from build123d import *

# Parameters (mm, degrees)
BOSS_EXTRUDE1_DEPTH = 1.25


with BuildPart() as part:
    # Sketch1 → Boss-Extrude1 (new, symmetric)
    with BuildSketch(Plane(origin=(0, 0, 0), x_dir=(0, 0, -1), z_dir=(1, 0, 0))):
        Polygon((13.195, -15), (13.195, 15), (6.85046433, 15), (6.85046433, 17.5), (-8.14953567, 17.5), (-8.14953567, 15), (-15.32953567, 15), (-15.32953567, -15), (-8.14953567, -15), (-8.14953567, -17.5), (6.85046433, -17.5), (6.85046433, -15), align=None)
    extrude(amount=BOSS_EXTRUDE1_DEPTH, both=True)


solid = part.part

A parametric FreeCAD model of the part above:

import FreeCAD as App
import Part
import Sketcher
from FreeCAD import Vector

doc = App.newDocument("Part")
params = doc.addObject("Spreadsheet::Sheet", "Params")
for row, (alias, value) in enumerate([
    ("sketch1_width", "30 mm"),
    ("sketch1_height", "15 mm"),
    ("sketch1_width2", "2.5 mm"),
    ("sketch1_height2", "7.18 mm"),
    ("pad1_length", "2.5 mm"),
], start=1):
    params.set(f"A{row}", alias)
    params.set(f"B{row}", "=" + value)
    params.setAlias(f"B{row}", alias)

body = doc.addObject("PartDesign::Body", "Body")

# Sketch on YZ plane
sketch1 = doc.addObject("Sketcher::SketchObject", "Sketch")
body.addObject(sketch1)
sketch1.AttachmentSupport = (doc.YZ_Plane, [""])
sketch1.MapMode = "FlatFace"
sketch1.addGeometry([
    Part.LineSegment(Vector(-15, -13.2, 0), Vector(15, -13.2, 0)),  # 0
    Part.LineSegment(Vector(15, -13.2, 0), Vector(15, -6.9, 0)),  # 1
    Part.LineSegment(Vector(15, -6.9, 0), Vector(17.5, -6.9, 0)),  # 2
    Part.LineSegment(Vector(17.5, -6.9, 0), Vector(17.5, 8.1, 0)),  # 3
    Part.LineSegment(Vector(17.5, 8.1, 0), Vector(15, 8.1, 0)),  # 4
    Part.LineSegment(Vector(15, 8.1, 0), Vector(15, 15.3, 0)),  # 5
    Part.LineSegment(Vector(15, 15.3, 0), Vector(-15, 15.3, 0)),  # 6
    Part.LineSegment(Vector(-15, 15.3, 0), Vector(-15, 8.1, 0)),  # 7
    Part.LineSegment(Vector(-15, 8.1, 0), Vector(-17.5, 8.1, 0)),  # 8
    Part.LineSegment(Vector(-17.5, 8.1, 0), Vector(-17.5, -6.9, 0)),  # 9
    Part.LineSegment(Vector(-17.5, -6.9, 0), Vector(-15, -6.9, 0)),  # 10
    Part.LineSegment(Vector(-15, -6.9, 0), Vector(-15, -13.2, 0)),  # 11
], False)
sketch1.addConstraint([
    Sketcher.Constraint("Coincident", 0, 2, 1, 1),
    Sketcher.Constraint("Coincident", 1, 2, 2, 1),
    Sketcher.Constraint("Coincident", 2, 2, 3, 1),
    Sketcher.Constraint("Coincident", 3, 2, 4, 1),
    Sketcher.Constraint("Coincident", 4, 2, 5, 1),
    Sketcher.Constraint("Coincident", 5, 2, 6, 1),
    Sketcher.Constraint("Coincident", 6, 2, 7, 1),
    Sketcher.Constraint("Coincident", 7, 2, 8, 1),
    Sketcher.Constraint("Coincident", 8, 2, 9, 1),
    Sketcher.Constraint("Coincident", 9, 2, 10, 1),
    Sketcher.Constraint("Coincident", 10, 2, 11, 1),
    Sketcher.Constraint("Coincident", 11, 2, 0, 1),
    Sketcher.Constraint("Horizontal", 0),
    Sketcher.Constraint("Vertical", 1),
    Sketcher.Constraint("Horizontal", 2),
    Sketcher.Constraint("Vertical", 3),
    Sketcher.Constraint("Horizontal", 4),
    Sketcher.Constraint("Vertical", 5),
    Sketcher.Constraint("Horizontal", 6),
    Sketcher.Constraint("Vertical", 7),
    Sketcher.Constraint("Horizontal", 8),
    Sketcher.Constraint("Vertical", 9),
    Sketcher.Constraint("Horizontal", 10),
    Sketcher.Constraint("Vertical", 11),
    Sketcher.Constraint("Symmetric", 4, 2, 7, 2, -2),
    Sketcher.Constraint("Symmetric", 2, 2, 9, 2, -2),
    Sketcher.Constraint("Vertical", 1, 2, 4, 2),
    Sketcher.Constraint("Vertical", 7, 2, 10, 2),
    Sketcher.Constraint("DistanceX", 0, 1, 0, 2, 30.0),
    Sketcher.Constraint("DistanceY", 3, 1, 3, 2, 15.0),
    Sketcher.Constraint("DistanceX", 2, 1, 2, 2, 2.5),
    Sketcher.Constraint("DistanceY", 5, 1, 5, 2, 7.18),
    Sketcher.Constraint("DistanceY", 0, 2, -1, 1, 13.195),
    Sketcher.Constraint("DistanceY", 1, 1, 1, 2, 6.344536),
])
sketch1.setExpression("Constraints[28]", "Params.sketch1_width")
sketch1.setExpression("Constraints[29]", "Params.sketch1_height")
sketch1.setExpression("Constraints[30]", "Params.sketch1_width2")
sketch1.setExpression("Constraints[31]", "Params.sketch1_height2")
pad1 = doc.addObject("PartDesign::Pad", "Pad")
body.addObject(pad1)
pad1.Profile = sketch1
pad1.setExpression("Length", "Params.pad1_length")
pad1.Midplane = True

doc.recompute()
